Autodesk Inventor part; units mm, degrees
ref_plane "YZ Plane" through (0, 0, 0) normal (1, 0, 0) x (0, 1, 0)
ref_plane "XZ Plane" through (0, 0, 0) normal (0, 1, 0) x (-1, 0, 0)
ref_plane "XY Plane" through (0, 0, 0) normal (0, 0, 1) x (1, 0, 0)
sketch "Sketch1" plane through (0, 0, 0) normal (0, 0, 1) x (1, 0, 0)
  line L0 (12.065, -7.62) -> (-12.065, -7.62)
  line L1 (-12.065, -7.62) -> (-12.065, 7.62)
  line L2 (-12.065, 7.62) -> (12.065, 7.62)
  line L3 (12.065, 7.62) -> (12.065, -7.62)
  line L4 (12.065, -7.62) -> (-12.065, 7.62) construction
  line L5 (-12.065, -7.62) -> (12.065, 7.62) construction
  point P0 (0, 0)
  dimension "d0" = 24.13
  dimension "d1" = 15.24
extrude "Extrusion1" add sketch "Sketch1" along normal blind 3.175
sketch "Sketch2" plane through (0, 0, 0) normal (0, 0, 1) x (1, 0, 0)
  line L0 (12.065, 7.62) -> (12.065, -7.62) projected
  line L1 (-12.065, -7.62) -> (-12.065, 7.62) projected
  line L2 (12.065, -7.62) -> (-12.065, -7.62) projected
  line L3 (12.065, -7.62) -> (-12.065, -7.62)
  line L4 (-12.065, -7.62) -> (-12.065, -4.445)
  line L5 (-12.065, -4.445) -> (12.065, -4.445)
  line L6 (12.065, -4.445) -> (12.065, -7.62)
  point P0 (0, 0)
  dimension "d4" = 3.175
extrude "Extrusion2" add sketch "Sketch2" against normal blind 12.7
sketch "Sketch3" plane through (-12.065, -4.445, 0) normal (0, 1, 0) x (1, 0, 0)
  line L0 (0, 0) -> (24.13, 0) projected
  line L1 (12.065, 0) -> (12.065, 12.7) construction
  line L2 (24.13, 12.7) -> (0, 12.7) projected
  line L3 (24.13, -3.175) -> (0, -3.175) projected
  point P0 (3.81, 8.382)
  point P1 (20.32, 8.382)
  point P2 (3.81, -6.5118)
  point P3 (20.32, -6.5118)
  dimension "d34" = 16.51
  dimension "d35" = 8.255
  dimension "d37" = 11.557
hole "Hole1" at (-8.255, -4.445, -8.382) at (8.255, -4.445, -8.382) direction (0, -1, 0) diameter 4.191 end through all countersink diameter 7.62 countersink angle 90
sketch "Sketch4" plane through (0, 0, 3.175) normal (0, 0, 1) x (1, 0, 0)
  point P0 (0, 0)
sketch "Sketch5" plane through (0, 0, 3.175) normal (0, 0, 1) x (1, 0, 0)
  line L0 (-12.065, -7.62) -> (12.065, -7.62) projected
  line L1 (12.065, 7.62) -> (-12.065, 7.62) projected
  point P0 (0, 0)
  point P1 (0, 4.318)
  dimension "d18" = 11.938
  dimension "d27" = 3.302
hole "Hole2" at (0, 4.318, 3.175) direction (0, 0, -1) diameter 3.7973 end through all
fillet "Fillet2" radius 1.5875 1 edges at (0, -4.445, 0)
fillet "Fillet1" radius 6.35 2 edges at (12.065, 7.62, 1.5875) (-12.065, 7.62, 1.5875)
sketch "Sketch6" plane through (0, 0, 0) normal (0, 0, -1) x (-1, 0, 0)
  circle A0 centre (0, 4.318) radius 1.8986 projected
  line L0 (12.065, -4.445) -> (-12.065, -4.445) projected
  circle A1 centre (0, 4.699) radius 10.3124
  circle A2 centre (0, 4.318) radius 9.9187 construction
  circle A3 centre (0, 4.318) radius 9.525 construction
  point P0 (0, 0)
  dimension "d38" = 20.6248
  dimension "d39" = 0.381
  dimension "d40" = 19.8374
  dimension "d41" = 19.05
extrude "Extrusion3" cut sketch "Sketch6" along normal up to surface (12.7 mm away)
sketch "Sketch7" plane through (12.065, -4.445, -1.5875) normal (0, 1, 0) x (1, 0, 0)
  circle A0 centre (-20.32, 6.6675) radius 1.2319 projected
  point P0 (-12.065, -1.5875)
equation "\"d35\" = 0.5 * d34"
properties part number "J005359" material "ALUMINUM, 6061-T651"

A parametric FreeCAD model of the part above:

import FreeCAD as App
import Part
import Sketcher

V = App.Vector
Q = App.Units.Quantity


def edges_at(feature, points):
    """Names of the edges that pass closest to the given points."""
    edges = feature.Shape.Edges
    near = lambda p: min(range(len(edges)), key=lambda i: edges[i].distToShape(Part.Vertex(*p))[0])
    return sorted({f"Edge{near(p) + 1}" for p in points})

doc = App.newDocument("Part")
body = doc.addObject("PartDesign::Body", "Body")

# Sketch on XY plane
sketch1 = body.newObject("Sketcher::SketchObject", "Sketch")
sketch1.AttachmentSupport = (doc.getObject("XY_Plane"), [""])
sketch1.MapMode = "FlatFace"
sketch1.addGeometry(Part.LineSegment(V(-12.065, -7.62, 0), V(12.065, -7.62, 0)), False)
sketch1.addGeometry(Part.LineSegment(V(12.065, -7.62, 0), V(12.065, 7.62, 0)), False)
sketch1.addGeometry(Part.LineSegment(V(12.065, 7.62, 0), V(-12.065, 7.62, 0)), False)
sketch1.addGeometry(Part.LineSegment(V(-12.065, 7.62, 0), V(-12.065, -7.62, 0)), False)
sketch1.addConstraint(Sketcher.Constraint("Coincident", 0, 2, 1, 1))
sketch1.addConstraint(Sketcher.Constraint("Coincident", 1, 2, 2, 1))
sketch1.addConstraint(Sketcher.Constraint("Coincident", 2, 2, 3, 1))
sketch1.addConstraint(Sketcher.Constraint("Coincident", 3, 2, 0, 1))
sketch1.addConstraint(Sketcher.Constraint("Horizontal", 0))
sketch1.addConstraint(Sketcher.Constraint("Vertical", 1))
sketch1.addConstraint(Sketcher.Constraint("Horizontal", 2))
sketch1.addConstraint(Sketcher.Constraint("Vertical", 3))
sketch1.addConstraint(Sketcher.Constraint("Symmetric", 0, 2, 2, 2, -1, 1))
sketch1.addConstraint(Sketcher.Constraint("DistanceY", 1, 1, 1, 2, Q("0.6 in")))
sketch1.addConstraint(Sketcher.Constraint("DistanceX", 0, 1, 0, 2, Q("0.95 in")))
pad1 = body.newObject("PartDesign::Pad", "Pad")
pad1.Profile = sketch1
pad1.Length = Q("0.125 in")

# Sketch on XY plane
sketch2 = body.newObject("Sketcher::SketchObject", "Sketch001")
sketch2.AttachmentSupport = (doc.getObject("XY_Plane"), [""])
sketch2.MapMode = "FlatFace"
sketch2.addGeometry(Part.LineSegment(V(12.065, -7.62, 0), V(12.065, -4.445, 0)), False)
sketch2.addGeometry(Part.LineSegment(V(12.065, -4.445, 0), V(-12.065, -4.445, 0)), False)
sketch2.addGeometry(Part.LineSegment(V(-12.065, -4.445, 0), V(-12.065, -7.62, 0)), False)
sketch2.addGeometry(Part.LineSegment(V(-12.065, -7.62, 0), V(12.065, -7.62, 0)), False)
sketch2.addConstraint(Sketcher.Constraint("Coincident", 0, 2, 1, 1))
sketch2.addConstraint(Sketcher.Constraint("Coincident", 1, 2, 2, 1))
sketch2.addConstraint(Sketcher.Constraint("Coincident", 2, 2, 3, 1))
sketch2.addConstraint(Sketcher.Constraint("Coincident", 3, 2, 0, 1))
sketch2.addConstraint(Sketcher.Constraint("Vertical", 0))
sketch2.addConstraint(Sketcher.Constraint("Horizontal", 1))
sketch2.addConstraint(Sketcher.Constraint("Vertical", 2))
sketch2.addConstraint(Sketcher.Constraint("Horizontal", 3))
sketch2.addConstraint(Sketcher.Constraint("DistanceY", 0, 1, 0, 2, Q("0.125 in")))
sketch2.addConstraint(Sketcher.Constraint("DistanceX", 1, 2, 1, 1, Q("0.95 in")))
sketch2.addConstraint(Sketcher.Constraint("DistanceY", 2, 2, -1, 1, Q("0.3 in")))
sketch2.addConstraint(Sketcher.Constraint("DistanceX", -1, 1, 0, 2, Q("0.475 in")))
pad2 = body.newObject("PartDesign::Pad", "Pad001")
pad2.Profile = sketch2
pad2.Length = Q("0.5 in")
pad2.Reversed = True

# Sketch on XZ plane
sketch3 = body.newObject("Sketcher::SketchObject", "Sketch002")
sketch3.AttachmentSupport = (doc.getObject("XZ_Plane"), [""])
sketch3.MapMode = "FlatFace"
sketch3.AttachmentOffset = App.Placement(V(0, 0, 0.175 * 25.4), App.Rotation())
sketch3.addGeometry(Part.Circle(V(-8.255, -8.382, 0), V(0, 0, 1), 2.0955), False)
sketch3.addGeometry(Part.Circle(V(8.255, -8.382, 0), V(0, 0, 1), 2.0955), False)
sketch3.addConstraint(Sketcher.Constraint("Equal", 0, 1))
sketch3.addConstraint(Sketcher.Constraint("Symmetric", 0, 3, 1, 3, -2))
sketch3.addConstraint(Sketcher.Constraint("Diameter", 0, Q("0.165 in")))
sketch3.addConstraint(Sketcher.Constraint("DistanceY", 0, 3, -1, 1, Q("0.33 in")))
sketch3.addConstraint(Sketcher.Constraint("DistanceX", 0, 3, 1, 3, Q("0.65 in")))
doc.recompute()
hole = body.newObject("PartDesign::Hole", "Hole")
hole.Profile = sketch3
hole.ThreadType = "None"
hole.Diameter = Q("0.165 in")
hole.DepthType = "ThroughAll"
hole.HoleCutType = "Countersink"
hole.HoleCutDiameter = Q("0.3 in")
hole.HoleCutCountersinkAngle = 90
hole.Reversed = True

# Sketch on XY plane
sketch4 = body.newObject("Sketcher::SketchObject", "Sketch003")
sketch4.AttachmentSupport = (doc.getObject("XY_Plane"), [""])
sketch4.MapMode = "FlatFace"
sketch4.AttachmentOffset = App.Placement(V(0, 0, 0.125 * 25.4), App.Rotation())
sketch4.addGeometry(Part.Circle(V(0, 4.318, 0), V(0, 0, 1), 1.89865), False)
sketch4.addConstraint(Sketcher.Constraint("PointOnObject", 0, 3, -2))
sketch4.addConstraint(Sketcher.Constraint("Diameter", 0, Q("0.1495 in")))
sketch4.addConstraint(Sketcher.Constraint("DistanceY", -1, 1, 0, 3, Q("0.17 in")))
doc.recompute()
hole2 = body.newObject("PartDesign::Hole", "Hole001")
hole2.Profile = sketch4
hole2.ThreadType = "None"
hole2.Diameter = Q("0.1495 in")
hole2.DepthType = "ThroughAll"
doc.recompute()

fillet = body.newObject("PartDesign::Fillet", "Fillet")
fillet.Base = (hole2, edges_at(hole2, [(0, -4.445, 0)]))
fillet.Radius = Q("0.0625 in")
doc.recompute()

fillet2 = body.newObject("PartDesign::Fillet", "Fillet001")
fillet2.Base = (fillet, edges_at(fillet, [(12.065, 7.62, 1.587), (-12.065, 7.62, 1.587)]))
fillet2.Radius = Q("0.25 in")

# Sketch on XY plane
sketch5 = body.newObject("Sketcher::SketchObject", "Sketch004")
sketch5.AttachmentSupport = (doc.getObject("XY_Plane"), [""])
sketch5.MapMode = "FlatFace"
sketch5.addGeometry(Part.Circle(V(0, 4.699, 0), V(0, 0, 1), 10.3124), False)
sketch5.addGeometry(Part.Circle(V(0, 4.318, 0), V(0, 0, 1), 1.8986), False)
sketch5.addConstraint(Sketcher.Constraint("PointOnObject", 0, 3, -2))
sketch5.addConstraint(Sketcher.Constraint("PointOnObject", 1, 3, -2))
sketch5.addConstraint(Sketcher.Constraint("Diameter", 0, Q("0.812 in")))
sketch5.addConstraint(Sketcher.Constraint("DistanceY", 1, 3, 0, 3, Q("0.015 in")))
sketch5.addConstraint(Sketcher.Constraint("Diameter", 1, Q("0.1495 in")))
sketch5.addConstraint(Sketcher.Constraint("DistanceY", -1, 1, 1, 3, Q("0.17 in")))
pocket1 = body.newObject("PartDesign::Pocket", "Pocket")
pocket1.Profile = sketch5
pocket1.Length = Q("0.5 in")

doc.recompute()
